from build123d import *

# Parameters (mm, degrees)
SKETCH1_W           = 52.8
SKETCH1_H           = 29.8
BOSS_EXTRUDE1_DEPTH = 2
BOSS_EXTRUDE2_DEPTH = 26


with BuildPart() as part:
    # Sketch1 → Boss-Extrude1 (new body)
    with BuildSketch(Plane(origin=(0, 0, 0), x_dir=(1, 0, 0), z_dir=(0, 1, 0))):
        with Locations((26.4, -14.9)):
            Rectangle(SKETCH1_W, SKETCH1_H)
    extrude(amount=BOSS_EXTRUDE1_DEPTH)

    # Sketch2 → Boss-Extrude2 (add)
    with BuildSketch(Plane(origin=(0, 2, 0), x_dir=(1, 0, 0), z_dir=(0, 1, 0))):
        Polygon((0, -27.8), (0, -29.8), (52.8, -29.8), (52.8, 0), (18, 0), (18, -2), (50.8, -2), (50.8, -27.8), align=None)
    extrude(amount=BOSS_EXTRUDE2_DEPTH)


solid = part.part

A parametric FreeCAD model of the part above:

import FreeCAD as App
import Part
import Sketcher
Q = App.Units.Quantity


def add_polygon(sketch, points):
    """Adds a closed chain of lines whose ends are joined by coincident constraints."""
    first, n = sketch.GeometryCount, len(points)
    for a, b in zip(points, points[1:] + points[:1]):
        sketch.addGeometry(Part.LineSegment(App.Vector(*a, 0), App.Vector(*b, 0)), False)
    for i in range(n):
        sketch.addConstraint(Sketcher.Constraint("Coincident", first + i, 2, first + (i + 1) % n, 1))

doc = App.newDocument("Part")
params = doc.addObject("Spreadsheet::Sheet", "Params")
for row, (alias, value) in enumerate([
    ("sketch1_width", "52.8 mm"),
    ("sketch1_height", "29.8 mm"),
    ("pad1_length", "2 mm"),
    ("sketch2_height", "2 mm"),
    ("sketch2_width", "52.8 mm"),
    ("sketch2_width2", "34.8 mm"),
    ("sketch2_width3", "32.8 mm"),
    ("sketch2_height2", "29.8 mm"),
    ("pad2_length", "26 mm"),
], start=1):
    params.set(f"A{row}", alias)
    params.set(f"B{row}", "=" + value)
    params.setAlias(f"B{row}", alias)

body = doc.addObject("PartDesign::Body", "Body")

# Sketch on XZ plane
sketch1 = body.newObject("Sketcher::SketchObject", "Sketch")
sketch1.AttachmentSupport = (doc.getObject("XZ_Plane"), [""])
sketch1.MapMode = "FlatFace"
add_polygon(sketch1, [(0, 0), (0, 30), (53, 30), (53, 0)])  # lines 0-3
sketch1.addConstraint([
    Sketcher.Constraint("Vertical", 0),
    Sketcher.Constraint("Horizontal", 1),
    Sketcher.Constraint("Vertical", 2),
    Sketcher.Constraint("Horizontal", 3),
    Sketcher.Constraint("Coincident", 3, 2, -1, 1),
    Sketcher.Constraint("DistanceX", 1, 1, 1, 2, Q("52.8 mm")),
    Sketcher.Constraint("DistanceY", 0, 1, 0, 2, Q("29.8 mm")),
])
sketch1.setExpression("Constraints[9]", "Params.sketch1_width")
sketch1.setExpression("Constraints[10]", "Params.sketch1_height")
pad1 = body.newObject("PartDesign::Pad", "Pad")
pad1.Profile = sketch1
pad1.setExpression("Length", "Params.pad1_length")
pad1.Reversed = True

# Sketch on XZ plane
sketch2 = body.newObject("Sketcher::SketchObject", "Sketch001")
sketch2.AttachmentSupport = (doc.getObject("XZ_Plane"), [""])
sketch2.MapMode = "FlatFace"
sketch2.AttachmentOffset = App.Placement(App.Vector(0, 0, -2), App.Rotation())
add_polygon(sketch2, [(0, 27.8), (0, 29.8), (52.8, 29.8), (52.8, 0), (18, 0), (18, 2), (50.8, 2), (50.8, 27.8)])  # lines 0-7
sketch2.addConstraint([
    Sketcher.Constraint("Vertical", 0),
    Sketcher.Constraint("Horizontal", 1),
    Sketcher.Constraint("Vertical", 2),
    Sketcher.Constraint("Horizontal", 3),
    Sketcher.Constraint("Vertical", 4),
    Sketcher.Constraint("Horizontal", 5),
    Sketcher.Constraint("Vertical", 6),
    Sketcher.Constraint("Horizontal", 7),
    Sketcher.Constraint("PointOnObject", 0, 2, -2),
    Sketcher.Constraint("PointOnObject", 2, 2, -1),
    Sketcher.Constraint("Equal", 0, 4),
    Sketcher.Constraint("DistanceY", 0, 1, 0, 2, Q("2 mm")),
    Sketcher.Constraint("DistanceX", 1, 1, 1, 2, Q("52.8 mm")),
    Sketcher.Constraint("DistanceX", 3, 2, 3, 1, Q("34.8 mm")),
    Sketcher.Constraint("DistanceX", 5, 1, 5, 2, Q("32.8 mm")),
    Sketcher.Constraint("DistanceY", 2, 2, 2, 1, Q("29.8 mm")),
])
sketch2.setExpression("Constraints[19]", "Params.sketch2_height")
sketch2.setExpression("Constraints[20]", "Params.sketch2_width")
sketch2.setExpression("Constraints[21]", "Params.sketch2_width2")
sketch2.setExpression("Constraints[22]", "Params.sketch2_width3")
sketch2.setExpression("Constraints[23]", "Params.sketch2_height2")
pad2 = body.newObject("PartDesign::Pad", "Pad001")
pad2.Profile = sketch2
pad2.setExpression("Length", "Params.pad2_length")
pad2.Reversed = True

doc.recompute()
